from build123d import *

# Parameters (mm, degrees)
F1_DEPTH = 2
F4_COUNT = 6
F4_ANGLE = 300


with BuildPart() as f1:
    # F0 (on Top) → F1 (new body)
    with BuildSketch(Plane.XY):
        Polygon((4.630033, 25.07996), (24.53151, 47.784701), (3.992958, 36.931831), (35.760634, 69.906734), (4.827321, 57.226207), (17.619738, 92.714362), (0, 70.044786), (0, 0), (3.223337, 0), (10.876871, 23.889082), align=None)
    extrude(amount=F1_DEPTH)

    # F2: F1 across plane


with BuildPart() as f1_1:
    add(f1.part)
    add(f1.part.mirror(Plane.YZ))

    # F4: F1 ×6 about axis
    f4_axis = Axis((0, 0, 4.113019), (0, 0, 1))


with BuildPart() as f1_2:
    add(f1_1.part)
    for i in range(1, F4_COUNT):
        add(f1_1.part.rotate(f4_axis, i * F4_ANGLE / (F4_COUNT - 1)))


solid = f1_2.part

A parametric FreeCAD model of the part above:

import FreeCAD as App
import Part
import Sketcher
from FreeCAD import Vector


def add_polygon(sketch, points):
    """Adds a closed chain of lines whose ends are joined by coincident constraints."""
    first, n = sketch.GeometryCount, len(points)
    for a, b in zip(points, points[1:] + points[:1]):
        sketch.addGeometry(Part.LineSegment(App.Vector(*a, 0), App.Vector(*b, 0)), False)
    for i in range(n):
        sketch.addConstraint(Sketcher.Constraint("Coincident", first + i, 2, first + (i + 1) % n, 1))

doc = App.newDocument("Part")
body = doc.addObject("PartDesign::Body", "Body")

# Sketch on XY plane
sketch1 = doc.addObject("Sketcher::SketchObject", "Sketch")
body.addObject(sketch1)
sketch1.AttachmentSupport = (doc.XY_Plane, [""])
sketch1.MapMode = "FlatFace"
add_polygon(sketch1, [(4.6, 25.1), (24.5, 47.8), (4, 36.9), (35.8, 69.9), (4.8, 57.2), (17.6, 92.7), (0, 70), (0, 0), (3.2, 0), (10.9, 23.9)])  # lines 0-9
sketch1.addConstraint(Sketcher.Constraint("Vertical", 6))
sketch1.addConstraint(Sketcher.Constraint("Horizontal", 7))
sketch1.addConstraint(Sketcher.Constraint("Coincident", 6, 2, -1, 1))
sketch1.addConstraint(Sketcher.Constraint("DistanceY", -1, 1, 0, 2, 47.784701))
sketch1.addConstraint(Sketcher.Constraint("Distance", 8, 25.085151))
sketch1.addConstraint(Sketcher.Constraint("DistanceX", 7, 1, 7, 2, 3.223337))
sketch1.addConstraint(Sketcher.Constraint("DistanceY", 6, 2, 6, 1, 70.044786))
sketch1.addConstraint(Sketcher.Constraint("DistanceX", -1, 1, 0, 2, 24.53151))
sketch1.addConstraint(Sketcher.Constraint("DistanceY", -1, 1, 1, 2, 36.931831))
sketch1.addConstraint(Sketcher.Constraint("DistanceX", -1, 1, 3, 2, 4.827321))
sketch1.addConstraint(Sketcher.Constraint("DistanceX", -1, 1, 4, 2, 17.619738))
sketch1.addConstraint(Sketcher.Constraint("DistanceY", -1, 1, 4, 2, 92.714362))
sketch1.addConstraint(Sketcher.Constraint("DistanceX", -1, 1, 8, 2, 10.876871))
sketch1.addConstraint(Sketcher.Constraint("DistanceY", -1, 1, 9, 2, 25.07996))
sketch1.addConstraint(Sketcher.Constraint("DistanceX", 1, 2, 4, 2, 13.62678))
sketch1.addConstraint(Sketcher.Constraint("DistanceY", 3, 2, 5, 2, 12.818579))
sketch1.addConstraint(Sketcher.Constraint("Distance", 0, 30.192285))
sketch1.addConstraint(Sketcher.Constraint("Distance", 2, 45.787875))
sketch1.addConstraint(Sketcher.Constraint("Distance", 3, 33.431506))
pad1 = doc.addObject("PartDesign::Pad", "Pad")
body.addObject(pad1)
pad1.Profile = sketch1
pad1.Length = 2
body2 = doc.addObject("PartDesign::Body", "Body001")
doc.recompute()

body2.BaseFeature = body
doc.recompute()

mirroring = doc.addObject("Part::Mirroring", "Mirroring")
mirroring.Source = body
mirroring.Base = Vector(0, 0, 0)
mirroring.Normal = Vector(1, 0, 0)
body3 = doc.addObject("PartDesign::Body", "Body002")
body3.BaseFeature = mirroring
boolean = doc.addObject("PartDesign::Boolean", "Boolean")
body2.addObject(boolean)
boolean.Type = "Fuse"
boolean.addObjects([body3])
doc.recompute()
body4 = doc.addObject("PartDesign::Body", "Body003")
doc.recompute()

body4.BaseFeature = body2
doc.recompute()

body5 = doc.addObject("PartDesign::Body", "Body004")
body5.BaseFeature = body2
body5.Placement = App.Placement(Vector(0, 0, 0), App.Rotation(Vector(0, 0, 1), 60))
boolean2 = doc.addObject("PartDesign::Boolean", "Boolean001")
body4.addObject(boolean2)
boolean2.Type = "Fuse"
boolean2.addObjects([body5])
doc.recompute()

body6 = doc.addObject("PartDesign::Body", "Body005")
body6.BaseFeature = body2
body6.Placement = App.Placement(Vector(0, 0, 0), App.Rotation(Vector(0, 0, 1), 120))
boolean3 = doc.addObject("PartDesign::Boolean", "Boolean002")
body4.addObject(boolean3)
boolean3.Type = "Fuse"
boolean3.addObjects([body6])
doc.recompute()

body7 = doc.addObject("PartDesign::Body", "Body006")
body7.BaseFeature = body2
body7.Placement = App.Placement(Vector(0, 0, 0), App.Rotation(Vector(0, 0, 1), 180))
boolean4 = doc.addObject("PartDesign::Boolean", "Boolean003")
body4.addObject(boolean4)
boolean4.Type = "Fuse"
boolean4.addObjects([body7])
doc.recompute()

body8 = doc.addObject("PartDesign::Body", "Body007")
body8.BaseFeature = body2
body8.Placement = App.Placement(Vector(0, 0, 0), App.Rotation(Vector(0, 0, 1), 240))
boolean5 = doc.addObject("PartDesign::Boolean", "Boolean004")
body4.addObject(boolean5)
boolean5.Type = "Fuse"
boolean5.addObjects([body8])
doc.recompute()

body2.Placement = App.Placement(Vector(0, 0, 0), App.Rotation(Vector(0, 0, 1), 300))
boolean6 = doc.addObject("PartDesign::Boolean", "Boolean005")
body4.addObject(boolean6)
boolean6.Type = "Fuse"
boolean6.addObjects([body2])
mirroring.Visibility = False

doc.recompute()
